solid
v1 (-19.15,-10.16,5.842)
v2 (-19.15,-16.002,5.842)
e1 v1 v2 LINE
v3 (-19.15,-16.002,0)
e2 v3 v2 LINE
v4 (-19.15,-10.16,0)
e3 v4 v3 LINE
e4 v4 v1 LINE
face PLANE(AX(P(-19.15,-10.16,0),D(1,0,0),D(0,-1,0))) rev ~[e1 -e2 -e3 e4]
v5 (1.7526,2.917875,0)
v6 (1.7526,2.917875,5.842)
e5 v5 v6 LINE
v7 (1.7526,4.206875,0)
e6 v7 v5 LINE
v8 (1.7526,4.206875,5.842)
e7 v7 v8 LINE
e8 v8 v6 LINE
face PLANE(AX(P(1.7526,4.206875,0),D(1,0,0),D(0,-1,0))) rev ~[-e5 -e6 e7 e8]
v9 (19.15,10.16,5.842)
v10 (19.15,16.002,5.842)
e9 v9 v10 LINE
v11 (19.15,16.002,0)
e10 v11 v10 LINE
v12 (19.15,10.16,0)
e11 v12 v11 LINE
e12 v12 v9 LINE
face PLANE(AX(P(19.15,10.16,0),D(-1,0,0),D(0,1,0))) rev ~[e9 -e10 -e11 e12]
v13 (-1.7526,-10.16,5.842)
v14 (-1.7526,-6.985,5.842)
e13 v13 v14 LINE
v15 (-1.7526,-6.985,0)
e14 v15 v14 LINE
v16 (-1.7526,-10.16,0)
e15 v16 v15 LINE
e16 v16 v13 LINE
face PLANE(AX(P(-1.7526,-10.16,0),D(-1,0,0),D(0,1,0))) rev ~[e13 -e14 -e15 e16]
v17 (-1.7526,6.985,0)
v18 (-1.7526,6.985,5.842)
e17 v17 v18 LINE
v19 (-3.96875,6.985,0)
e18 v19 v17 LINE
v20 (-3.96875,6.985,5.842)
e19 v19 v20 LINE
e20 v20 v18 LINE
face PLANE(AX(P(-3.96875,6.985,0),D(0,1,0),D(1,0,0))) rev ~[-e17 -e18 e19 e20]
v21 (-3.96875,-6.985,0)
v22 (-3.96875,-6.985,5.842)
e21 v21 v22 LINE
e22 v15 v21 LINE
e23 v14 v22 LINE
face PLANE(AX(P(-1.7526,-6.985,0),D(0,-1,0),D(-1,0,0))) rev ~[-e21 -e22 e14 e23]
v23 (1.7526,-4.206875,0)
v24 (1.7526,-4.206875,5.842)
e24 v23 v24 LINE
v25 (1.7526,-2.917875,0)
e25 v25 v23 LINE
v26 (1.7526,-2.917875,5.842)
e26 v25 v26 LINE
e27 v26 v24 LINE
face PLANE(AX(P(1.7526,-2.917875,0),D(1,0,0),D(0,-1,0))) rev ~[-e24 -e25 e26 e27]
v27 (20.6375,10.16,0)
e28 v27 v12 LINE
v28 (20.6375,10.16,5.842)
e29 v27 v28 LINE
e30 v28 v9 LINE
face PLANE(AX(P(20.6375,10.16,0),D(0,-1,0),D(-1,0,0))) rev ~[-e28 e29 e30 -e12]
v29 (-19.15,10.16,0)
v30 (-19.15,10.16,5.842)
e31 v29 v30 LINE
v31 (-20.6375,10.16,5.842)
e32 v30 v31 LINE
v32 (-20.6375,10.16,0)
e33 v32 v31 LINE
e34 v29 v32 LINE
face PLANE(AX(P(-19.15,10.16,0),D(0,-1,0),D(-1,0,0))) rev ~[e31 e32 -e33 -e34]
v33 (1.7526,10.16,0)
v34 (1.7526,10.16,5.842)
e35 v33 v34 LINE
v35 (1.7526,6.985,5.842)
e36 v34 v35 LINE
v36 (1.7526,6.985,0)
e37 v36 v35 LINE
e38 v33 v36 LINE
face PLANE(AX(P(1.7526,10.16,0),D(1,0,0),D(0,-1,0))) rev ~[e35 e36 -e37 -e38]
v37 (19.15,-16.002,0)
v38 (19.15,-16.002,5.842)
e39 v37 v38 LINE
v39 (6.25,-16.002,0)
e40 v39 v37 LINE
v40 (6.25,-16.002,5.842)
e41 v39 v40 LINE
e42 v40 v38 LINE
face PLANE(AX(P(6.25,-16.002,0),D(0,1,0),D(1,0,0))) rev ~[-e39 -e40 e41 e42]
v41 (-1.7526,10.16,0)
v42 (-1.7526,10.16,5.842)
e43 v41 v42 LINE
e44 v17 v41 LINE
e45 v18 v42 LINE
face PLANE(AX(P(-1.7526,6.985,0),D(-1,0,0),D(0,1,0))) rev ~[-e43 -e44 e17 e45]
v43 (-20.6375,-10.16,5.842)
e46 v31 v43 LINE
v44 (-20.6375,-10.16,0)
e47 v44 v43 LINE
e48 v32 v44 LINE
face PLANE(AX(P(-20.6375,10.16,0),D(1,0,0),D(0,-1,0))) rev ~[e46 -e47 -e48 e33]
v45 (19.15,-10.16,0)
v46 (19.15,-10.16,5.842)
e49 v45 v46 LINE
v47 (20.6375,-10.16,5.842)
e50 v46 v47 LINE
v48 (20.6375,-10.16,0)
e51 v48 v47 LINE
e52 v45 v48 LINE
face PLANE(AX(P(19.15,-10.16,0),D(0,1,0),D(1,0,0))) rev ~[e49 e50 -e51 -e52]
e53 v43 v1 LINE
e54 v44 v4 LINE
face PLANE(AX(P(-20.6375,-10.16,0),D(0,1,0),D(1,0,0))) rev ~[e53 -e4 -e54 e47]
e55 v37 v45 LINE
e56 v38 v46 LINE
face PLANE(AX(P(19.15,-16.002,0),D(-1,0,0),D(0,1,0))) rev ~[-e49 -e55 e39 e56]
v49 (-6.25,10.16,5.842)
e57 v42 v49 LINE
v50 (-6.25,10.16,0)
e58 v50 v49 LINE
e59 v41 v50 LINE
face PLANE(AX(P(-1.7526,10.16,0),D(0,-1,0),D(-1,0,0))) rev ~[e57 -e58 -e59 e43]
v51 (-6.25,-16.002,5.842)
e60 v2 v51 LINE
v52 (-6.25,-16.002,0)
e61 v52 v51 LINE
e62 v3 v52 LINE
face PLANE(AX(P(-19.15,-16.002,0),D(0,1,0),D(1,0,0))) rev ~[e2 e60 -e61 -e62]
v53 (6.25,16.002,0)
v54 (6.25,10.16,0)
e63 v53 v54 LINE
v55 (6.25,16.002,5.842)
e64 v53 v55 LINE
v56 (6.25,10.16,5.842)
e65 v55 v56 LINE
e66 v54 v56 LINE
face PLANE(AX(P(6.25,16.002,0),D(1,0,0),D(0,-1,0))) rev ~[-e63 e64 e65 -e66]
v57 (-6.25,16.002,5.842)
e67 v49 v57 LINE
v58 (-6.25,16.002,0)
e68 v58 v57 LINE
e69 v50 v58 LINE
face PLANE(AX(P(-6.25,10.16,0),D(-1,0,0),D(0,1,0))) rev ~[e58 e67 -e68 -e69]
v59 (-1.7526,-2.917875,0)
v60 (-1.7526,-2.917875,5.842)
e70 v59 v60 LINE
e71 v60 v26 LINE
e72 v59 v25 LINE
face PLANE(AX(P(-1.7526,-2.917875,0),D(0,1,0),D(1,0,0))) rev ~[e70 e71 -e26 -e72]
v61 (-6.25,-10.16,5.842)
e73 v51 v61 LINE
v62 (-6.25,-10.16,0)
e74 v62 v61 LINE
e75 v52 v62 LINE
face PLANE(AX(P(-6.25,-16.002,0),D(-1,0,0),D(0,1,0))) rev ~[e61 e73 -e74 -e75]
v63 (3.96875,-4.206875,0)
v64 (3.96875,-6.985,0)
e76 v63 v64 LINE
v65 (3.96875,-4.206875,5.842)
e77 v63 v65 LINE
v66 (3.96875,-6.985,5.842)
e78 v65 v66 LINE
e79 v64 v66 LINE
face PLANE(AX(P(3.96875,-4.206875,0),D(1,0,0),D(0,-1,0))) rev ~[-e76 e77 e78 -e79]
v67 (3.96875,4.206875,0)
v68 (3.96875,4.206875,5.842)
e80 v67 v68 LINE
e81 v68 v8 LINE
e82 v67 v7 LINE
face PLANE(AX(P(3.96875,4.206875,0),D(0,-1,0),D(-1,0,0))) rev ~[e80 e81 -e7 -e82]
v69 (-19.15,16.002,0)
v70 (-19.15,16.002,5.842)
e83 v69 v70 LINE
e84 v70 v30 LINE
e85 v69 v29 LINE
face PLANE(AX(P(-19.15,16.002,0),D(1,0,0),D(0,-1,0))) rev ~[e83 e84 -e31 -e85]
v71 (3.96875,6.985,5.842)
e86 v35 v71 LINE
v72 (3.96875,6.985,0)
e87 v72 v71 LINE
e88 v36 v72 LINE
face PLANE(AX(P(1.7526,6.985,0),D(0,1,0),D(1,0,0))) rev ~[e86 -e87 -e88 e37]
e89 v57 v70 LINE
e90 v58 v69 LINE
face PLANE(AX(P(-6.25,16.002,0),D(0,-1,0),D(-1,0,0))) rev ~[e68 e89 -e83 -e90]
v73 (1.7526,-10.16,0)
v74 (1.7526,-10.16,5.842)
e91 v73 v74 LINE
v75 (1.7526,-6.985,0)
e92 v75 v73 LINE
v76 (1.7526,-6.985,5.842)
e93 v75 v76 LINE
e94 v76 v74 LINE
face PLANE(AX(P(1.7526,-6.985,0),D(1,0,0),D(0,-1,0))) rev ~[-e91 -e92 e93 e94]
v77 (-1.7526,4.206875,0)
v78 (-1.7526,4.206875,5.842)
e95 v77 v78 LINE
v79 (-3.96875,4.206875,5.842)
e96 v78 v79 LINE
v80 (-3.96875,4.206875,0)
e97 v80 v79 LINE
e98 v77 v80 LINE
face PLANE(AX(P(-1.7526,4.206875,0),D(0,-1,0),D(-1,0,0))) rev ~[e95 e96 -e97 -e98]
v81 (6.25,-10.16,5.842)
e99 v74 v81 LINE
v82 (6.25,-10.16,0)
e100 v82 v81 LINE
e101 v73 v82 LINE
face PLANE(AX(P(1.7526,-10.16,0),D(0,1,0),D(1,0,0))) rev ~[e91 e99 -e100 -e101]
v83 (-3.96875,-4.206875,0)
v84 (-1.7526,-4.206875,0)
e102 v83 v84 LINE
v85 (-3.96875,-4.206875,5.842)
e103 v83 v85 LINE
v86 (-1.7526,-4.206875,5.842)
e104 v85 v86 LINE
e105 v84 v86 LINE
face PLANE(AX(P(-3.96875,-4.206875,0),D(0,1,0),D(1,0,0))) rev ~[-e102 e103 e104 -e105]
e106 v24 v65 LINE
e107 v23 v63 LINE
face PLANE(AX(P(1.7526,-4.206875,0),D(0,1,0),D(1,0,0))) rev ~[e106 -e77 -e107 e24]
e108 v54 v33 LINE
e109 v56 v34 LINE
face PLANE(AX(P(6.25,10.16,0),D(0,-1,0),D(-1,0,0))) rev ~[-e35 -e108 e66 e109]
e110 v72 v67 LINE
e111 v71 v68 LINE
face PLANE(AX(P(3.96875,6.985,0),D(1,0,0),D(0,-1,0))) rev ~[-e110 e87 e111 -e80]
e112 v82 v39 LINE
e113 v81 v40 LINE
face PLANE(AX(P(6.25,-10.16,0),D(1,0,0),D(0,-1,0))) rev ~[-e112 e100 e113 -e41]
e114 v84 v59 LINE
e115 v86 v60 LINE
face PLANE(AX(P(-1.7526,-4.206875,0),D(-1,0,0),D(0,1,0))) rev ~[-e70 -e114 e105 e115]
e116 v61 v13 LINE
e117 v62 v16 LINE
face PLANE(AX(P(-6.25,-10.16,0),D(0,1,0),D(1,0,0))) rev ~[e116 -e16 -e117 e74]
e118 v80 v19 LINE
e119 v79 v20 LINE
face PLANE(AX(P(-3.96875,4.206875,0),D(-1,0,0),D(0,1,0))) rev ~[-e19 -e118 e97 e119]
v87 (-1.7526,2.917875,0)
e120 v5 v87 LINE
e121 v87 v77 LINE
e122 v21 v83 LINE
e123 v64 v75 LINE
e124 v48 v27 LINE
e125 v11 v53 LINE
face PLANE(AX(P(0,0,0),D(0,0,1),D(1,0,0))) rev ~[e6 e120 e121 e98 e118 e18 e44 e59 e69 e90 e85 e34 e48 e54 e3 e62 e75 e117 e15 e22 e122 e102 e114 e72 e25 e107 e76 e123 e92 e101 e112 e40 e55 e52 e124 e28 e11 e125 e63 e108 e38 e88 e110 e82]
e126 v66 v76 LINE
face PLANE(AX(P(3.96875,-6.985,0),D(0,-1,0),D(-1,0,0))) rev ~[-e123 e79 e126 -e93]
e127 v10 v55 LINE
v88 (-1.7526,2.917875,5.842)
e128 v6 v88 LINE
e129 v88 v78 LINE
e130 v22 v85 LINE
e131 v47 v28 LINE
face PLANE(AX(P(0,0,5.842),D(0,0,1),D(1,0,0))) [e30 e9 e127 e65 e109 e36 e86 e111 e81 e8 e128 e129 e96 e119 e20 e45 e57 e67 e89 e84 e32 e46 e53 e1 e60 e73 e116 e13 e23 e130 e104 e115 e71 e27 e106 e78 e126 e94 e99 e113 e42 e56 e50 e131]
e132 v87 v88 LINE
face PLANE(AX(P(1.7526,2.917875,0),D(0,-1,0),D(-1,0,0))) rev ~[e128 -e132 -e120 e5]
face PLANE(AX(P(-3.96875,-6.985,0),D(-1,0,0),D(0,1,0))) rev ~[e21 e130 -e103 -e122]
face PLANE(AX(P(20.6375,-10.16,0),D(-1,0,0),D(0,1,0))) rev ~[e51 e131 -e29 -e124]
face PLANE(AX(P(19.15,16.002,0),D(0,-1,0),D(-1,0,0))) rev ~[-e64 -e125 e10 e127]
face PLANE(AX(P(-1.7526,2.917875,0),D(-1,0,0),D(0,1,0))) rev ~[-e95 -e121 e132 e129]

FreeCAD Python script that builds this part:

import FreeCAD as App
import Part
import Sketcher
from FreeCAD import Vector
Q = App.Units.Quantity


def add_polygon(sketch, points):
    """Adds a closed chain of lines whose ends are joined by coincident constraints."""
    first, n = sketch.GeometryCount, len(points)
    for a, b in zip(points, points[1:] + points[:1]):
        sketch.addGeometry(Part.LineSegment(App.Vector(*a, 0), App.Vector(*b, 0)), False)
    for i in range(n):
        sketch.addConstraint(Sketcher.Constraint("Coincident", first + i, 2, first + (i + 1) % n, 1))

doc = App.newDocument("Part")
body = doc.addObject("PartDesign::Body", "Body")

# Sketch on XY plane
sketch1 = doc.addObject("Sketcher::SketchObject", "Sketch")
body.addObject(sketch1)
sketch1.AttachmentSupport = (doc.XY_Plane, [""])
sketch1.MapMode = "FlatFace"
add_polygon(sketch1, [(-19.15, 10.16), (-20.6375, 10.16), (-20.6375, -10.16), (-19.15, -10.16), (-19.15, -16.002), (-6.25, -16.002), (-6.25, -10.16), (-1.7526, -10.16), (-1.7526, -6.985), (-3.96875, -6.985), (-3.96875, -4.206875), (-1.7526, -4.206875), (-1.7526, -2.917875), (1.7526, -2.917875), (1.7526, -4.206875), (3.96875, -4.206875), (3.96875, -6.985), (1.7526, -6.985), (1.7526, -10.16), (6.25, -10.16), (6.25, -16.002), (19.15, -16.002), (19.15, -10.16), (20.6375, -10.16), (20.6375, 10.16), (19.15, 10.16), (19.15, 16.002), (6.25, 16.002), (6.25, 10.16), (1.7526, 10.16), (1.7526, 6.985), (3.96875, 6.985), (3.96875, 4.206875), (1.7526, 4.206875), (1.7526, 2.917875), (-1.7526, 2.917875), (-1.7526, 4.206875), (-3.96875, 4.206875), (-3.96875, 6.985), (-1.7526, 6.985), (-1.7526, 10.16), (-6.25, 10.16), (-6.25, 16.002), (-19.15, 16.002)])  # lines 0-43
sketch1.addConstraint(Sketcher.Constraint("Horizontal", 0))
sketch1.addConstraint(Sketcher.Constraint("Vertical", 1))
sketch1.addConstraint(Sketcher.Constraint("Horizontal", 2))
sketch1.addConstraint(Sketcher.Constraint("Vertical", 3))
sketch1.addConstraint(Sketcher.Constraint("Horizontal", 4))
sketch1.addConstraint(Sketcher.Constraint("Vertical", 5))
sketch1.addConstraint(Sketcher.Constraint("Horizontal", 6))
sketch1.addConstraint(Sketcher.Constraint("Vertical", 7))
sketch1.addConstraint(Sketcher.Constraint("Horizontal", 8))
sketch1.addConstraint(Sketcher.Constraint("Vertical", 9))
sketch1.addConstraint(Sketcher.Constraint("Horizontal", 10))
sketch1.addConstraint(Sketcher.Constraint("Vertical", 11))
sketch1.addConstraint(Sketcher.Constraint("Horizontal", 12))
sketch1.addConstraint(Sketcher.Constraint("Vertical", 13))
sketch1.addConstraint(Sketcher.Constraint("Horizontal", 14))
sketch1.addConstraint(Sketcher.Constraint("Vertical", 15))
sketch1.addConstraint(Sketcher.Constraint("Horizontal", 16))
sketch1.addConstraint(Sketcher.Constraint("Vertical", 17))
sketch1.addConstraint(Sketcher.Constraint("Horizontal", 18))
sketch1.addConstraint(Sketcher.Constraint("Vertical", 19))
sketch1.addConstraint(Sketcher.Constraint("Horizontal", 20))
sketch1.addConstraint(Sketcher.Constraint("Vertical", 21))
sketch1.addConstraint(Sketcher.Constraint("Horizontal", 22))
sketch1.addConstraint(Sketcher.Constraint("Vertical", 23))
sketch1.addConstraint(Sketcher.Constraint("Horizontal", 24))
sketch1.addConstraint(Sketcher.Constraint("Vertical", 25))
sketch1.addConstraint(Sketcher.Constraint("Horizontal", 26))
sketch1.addConstraint(Sketcher.Constraint("Vertical", 27))
sketch1.addConstraint(Sketcher.Constraint("Horizontal", 28))
sketch1.addConstraint(Sketcher.Constraint("Vertical", 29))
sketch1.addConstraint(Sketcher.Constraint("Horizontal", 30))
sketch1.addConstraint(Sketcher.Constraint("Vertical", 31))
sketch1.addConstraint(Sketcher.Constraint("Horizontal", 32))
sketch1.addConstraint(Sketcher.Constraint("Vertical", 33))
sketch1.addConstraint(Sketcher.Constraint("Horizontal", 34))
sketch1.addConstraint(Sketcher.Constraint("Vertical", 35))
sketch1.addConstraint(Sketcher.Constraint("Horizontal", 36))
sketch1.addConstraint(Sketcher.Constraint("Vertical", 37))
sketch1.addConstraint(Sketcher.Constraint("Horizontal", 38))
sketch1.addConstraint(Sketcher.Constraint("Vertical", 39))
sketch1.addConstraint(Sketcher.Constraint("Horizontal", 40))
sketch1.addConstraint(Sketcher.Constraint("Vertical", 41))
sketch1.addConstraint(Sketcher.Constraint("Horizontal", 42))
sketch1.addConstraint(Sketcher.Constraint("Vertical", 43))
sketch1.addConstraint(Sketcher.Constraint("Symmetric", 0, 2, 22, 2, -1, 1))
sketch1.addConstraint(Sketcher.Constraint("Symmetric", 2, 2, 24, 2, -1, 1))
sketch1.addConstraint(Sketcher.Constraint("Symmetric", 4, 2, 26, 2, -1, 1))
sketch1.addConstraint(Sketcher.Constraint("Symmetric", 6, 2, 28, 2, -1, 1))
sketch1.addConstraint(Sketcher.Constraint("Symmetric", 8, 2, 30, 2, -1, 1))
sketch1.addConstraint(Sketcher.Constraint("Symmetric", 10, 2, 32, 2, -1, 1))
sketch1.addConstraint(Sketcher.Constraint("Symmetric", 12, 2, 34, 2, -1, 1))
sketch1.addConstraint(Sketcher.Constraint("Symmetric", 14, 2, 36, 2, -1, 1))
sketch1.addConstraint(Sketcher.Constraint("Symmetric", 16, 2, 38, 2, -1, 1))
sketch1.addConstraint(Sketcher.Constraint("Symmetric", 18, 2, 40, 2, -1, 1))
sketch1.addConstraint(Sketcher.Constraint("Symmetric", 20, 2, 42, 2, -1, 1))
sketch1.addConstraint(Sketcher.Constraint("Symmetric", 10, 2, 13, 2, -2))
sketch1.addConstraint(Sketcher.Constraint("Symmetric", 8, 2, 15, 2, -2))
sketch1.addConstraint(Sketcher.Constraint("Symmetric", 6, 2, 17, 2, -2))
sketch1.addConstraint(Sketcher.Constraint("Symmetric", 4, 2, 19, 2, -2))
sketch1.addConstraint(Sketcher.Constraint("Symmetric", 2, 2, 21, 2, -2))
sketch1.addConstraint(Sketcher.Constraint("Horizontal", 2, 2, 5, 2))
sketch1.addConstraint(Sketcher.Constraint("Vertical", 7, 2, 10, 2))
sketch1.addConstraint(Sketcher.Constraint("DistanceY", 1, 2, 1, 1, Q("0.8 in")))
sketch1.addConstraint(Sketcher.Constraint("DistanceY", 3, 2, 3, 1, Q("0.23 in")))
sketch1.addConstraint(Sketcher.Constraint("DistanceX", 12, 1, 12, 2, Q("0.138 in")))
sketch1.addConstraint(Sketcher.Constraint("DistanceY", 7, 1, 7, 2, Q("0.125 in")))
sketch1.addConstraint(Sketcher.Constraint("DistanceY", 9, 1, 9, 2, Q("0.109375 in")))
sketch1.addConstraint(Sketcher.Constraint("DistanceX", 0, 2, -1, 1, Q("0.8125 in")))
sketch1.addConstraint(Sketcher.Constraint("DistanceX", 8, 2, -1, 1, Q("0.15625 in")))
sketch1.addConstraint(Sketcher.Constraint("DistanceX", 0, 2, 0, 1, Q("1.4875 mm")))
sketch1.addConstraint(Sketcher.Constraint("DistanceX", 4, 1, 4, 2, Q("12.9 mm")))
sketch1.addConstraint(Sketcher.Constraint("DistanceY", 11, 1, 11, 2, Q("1.289 mm")))
pad1 = doc.addObject("PartDesign::Pad", "Pad")
body.addObject(pad1)
pad1.Profile = sketch1
pad1.Length = Q("0.23 in")

doc.recompute()
